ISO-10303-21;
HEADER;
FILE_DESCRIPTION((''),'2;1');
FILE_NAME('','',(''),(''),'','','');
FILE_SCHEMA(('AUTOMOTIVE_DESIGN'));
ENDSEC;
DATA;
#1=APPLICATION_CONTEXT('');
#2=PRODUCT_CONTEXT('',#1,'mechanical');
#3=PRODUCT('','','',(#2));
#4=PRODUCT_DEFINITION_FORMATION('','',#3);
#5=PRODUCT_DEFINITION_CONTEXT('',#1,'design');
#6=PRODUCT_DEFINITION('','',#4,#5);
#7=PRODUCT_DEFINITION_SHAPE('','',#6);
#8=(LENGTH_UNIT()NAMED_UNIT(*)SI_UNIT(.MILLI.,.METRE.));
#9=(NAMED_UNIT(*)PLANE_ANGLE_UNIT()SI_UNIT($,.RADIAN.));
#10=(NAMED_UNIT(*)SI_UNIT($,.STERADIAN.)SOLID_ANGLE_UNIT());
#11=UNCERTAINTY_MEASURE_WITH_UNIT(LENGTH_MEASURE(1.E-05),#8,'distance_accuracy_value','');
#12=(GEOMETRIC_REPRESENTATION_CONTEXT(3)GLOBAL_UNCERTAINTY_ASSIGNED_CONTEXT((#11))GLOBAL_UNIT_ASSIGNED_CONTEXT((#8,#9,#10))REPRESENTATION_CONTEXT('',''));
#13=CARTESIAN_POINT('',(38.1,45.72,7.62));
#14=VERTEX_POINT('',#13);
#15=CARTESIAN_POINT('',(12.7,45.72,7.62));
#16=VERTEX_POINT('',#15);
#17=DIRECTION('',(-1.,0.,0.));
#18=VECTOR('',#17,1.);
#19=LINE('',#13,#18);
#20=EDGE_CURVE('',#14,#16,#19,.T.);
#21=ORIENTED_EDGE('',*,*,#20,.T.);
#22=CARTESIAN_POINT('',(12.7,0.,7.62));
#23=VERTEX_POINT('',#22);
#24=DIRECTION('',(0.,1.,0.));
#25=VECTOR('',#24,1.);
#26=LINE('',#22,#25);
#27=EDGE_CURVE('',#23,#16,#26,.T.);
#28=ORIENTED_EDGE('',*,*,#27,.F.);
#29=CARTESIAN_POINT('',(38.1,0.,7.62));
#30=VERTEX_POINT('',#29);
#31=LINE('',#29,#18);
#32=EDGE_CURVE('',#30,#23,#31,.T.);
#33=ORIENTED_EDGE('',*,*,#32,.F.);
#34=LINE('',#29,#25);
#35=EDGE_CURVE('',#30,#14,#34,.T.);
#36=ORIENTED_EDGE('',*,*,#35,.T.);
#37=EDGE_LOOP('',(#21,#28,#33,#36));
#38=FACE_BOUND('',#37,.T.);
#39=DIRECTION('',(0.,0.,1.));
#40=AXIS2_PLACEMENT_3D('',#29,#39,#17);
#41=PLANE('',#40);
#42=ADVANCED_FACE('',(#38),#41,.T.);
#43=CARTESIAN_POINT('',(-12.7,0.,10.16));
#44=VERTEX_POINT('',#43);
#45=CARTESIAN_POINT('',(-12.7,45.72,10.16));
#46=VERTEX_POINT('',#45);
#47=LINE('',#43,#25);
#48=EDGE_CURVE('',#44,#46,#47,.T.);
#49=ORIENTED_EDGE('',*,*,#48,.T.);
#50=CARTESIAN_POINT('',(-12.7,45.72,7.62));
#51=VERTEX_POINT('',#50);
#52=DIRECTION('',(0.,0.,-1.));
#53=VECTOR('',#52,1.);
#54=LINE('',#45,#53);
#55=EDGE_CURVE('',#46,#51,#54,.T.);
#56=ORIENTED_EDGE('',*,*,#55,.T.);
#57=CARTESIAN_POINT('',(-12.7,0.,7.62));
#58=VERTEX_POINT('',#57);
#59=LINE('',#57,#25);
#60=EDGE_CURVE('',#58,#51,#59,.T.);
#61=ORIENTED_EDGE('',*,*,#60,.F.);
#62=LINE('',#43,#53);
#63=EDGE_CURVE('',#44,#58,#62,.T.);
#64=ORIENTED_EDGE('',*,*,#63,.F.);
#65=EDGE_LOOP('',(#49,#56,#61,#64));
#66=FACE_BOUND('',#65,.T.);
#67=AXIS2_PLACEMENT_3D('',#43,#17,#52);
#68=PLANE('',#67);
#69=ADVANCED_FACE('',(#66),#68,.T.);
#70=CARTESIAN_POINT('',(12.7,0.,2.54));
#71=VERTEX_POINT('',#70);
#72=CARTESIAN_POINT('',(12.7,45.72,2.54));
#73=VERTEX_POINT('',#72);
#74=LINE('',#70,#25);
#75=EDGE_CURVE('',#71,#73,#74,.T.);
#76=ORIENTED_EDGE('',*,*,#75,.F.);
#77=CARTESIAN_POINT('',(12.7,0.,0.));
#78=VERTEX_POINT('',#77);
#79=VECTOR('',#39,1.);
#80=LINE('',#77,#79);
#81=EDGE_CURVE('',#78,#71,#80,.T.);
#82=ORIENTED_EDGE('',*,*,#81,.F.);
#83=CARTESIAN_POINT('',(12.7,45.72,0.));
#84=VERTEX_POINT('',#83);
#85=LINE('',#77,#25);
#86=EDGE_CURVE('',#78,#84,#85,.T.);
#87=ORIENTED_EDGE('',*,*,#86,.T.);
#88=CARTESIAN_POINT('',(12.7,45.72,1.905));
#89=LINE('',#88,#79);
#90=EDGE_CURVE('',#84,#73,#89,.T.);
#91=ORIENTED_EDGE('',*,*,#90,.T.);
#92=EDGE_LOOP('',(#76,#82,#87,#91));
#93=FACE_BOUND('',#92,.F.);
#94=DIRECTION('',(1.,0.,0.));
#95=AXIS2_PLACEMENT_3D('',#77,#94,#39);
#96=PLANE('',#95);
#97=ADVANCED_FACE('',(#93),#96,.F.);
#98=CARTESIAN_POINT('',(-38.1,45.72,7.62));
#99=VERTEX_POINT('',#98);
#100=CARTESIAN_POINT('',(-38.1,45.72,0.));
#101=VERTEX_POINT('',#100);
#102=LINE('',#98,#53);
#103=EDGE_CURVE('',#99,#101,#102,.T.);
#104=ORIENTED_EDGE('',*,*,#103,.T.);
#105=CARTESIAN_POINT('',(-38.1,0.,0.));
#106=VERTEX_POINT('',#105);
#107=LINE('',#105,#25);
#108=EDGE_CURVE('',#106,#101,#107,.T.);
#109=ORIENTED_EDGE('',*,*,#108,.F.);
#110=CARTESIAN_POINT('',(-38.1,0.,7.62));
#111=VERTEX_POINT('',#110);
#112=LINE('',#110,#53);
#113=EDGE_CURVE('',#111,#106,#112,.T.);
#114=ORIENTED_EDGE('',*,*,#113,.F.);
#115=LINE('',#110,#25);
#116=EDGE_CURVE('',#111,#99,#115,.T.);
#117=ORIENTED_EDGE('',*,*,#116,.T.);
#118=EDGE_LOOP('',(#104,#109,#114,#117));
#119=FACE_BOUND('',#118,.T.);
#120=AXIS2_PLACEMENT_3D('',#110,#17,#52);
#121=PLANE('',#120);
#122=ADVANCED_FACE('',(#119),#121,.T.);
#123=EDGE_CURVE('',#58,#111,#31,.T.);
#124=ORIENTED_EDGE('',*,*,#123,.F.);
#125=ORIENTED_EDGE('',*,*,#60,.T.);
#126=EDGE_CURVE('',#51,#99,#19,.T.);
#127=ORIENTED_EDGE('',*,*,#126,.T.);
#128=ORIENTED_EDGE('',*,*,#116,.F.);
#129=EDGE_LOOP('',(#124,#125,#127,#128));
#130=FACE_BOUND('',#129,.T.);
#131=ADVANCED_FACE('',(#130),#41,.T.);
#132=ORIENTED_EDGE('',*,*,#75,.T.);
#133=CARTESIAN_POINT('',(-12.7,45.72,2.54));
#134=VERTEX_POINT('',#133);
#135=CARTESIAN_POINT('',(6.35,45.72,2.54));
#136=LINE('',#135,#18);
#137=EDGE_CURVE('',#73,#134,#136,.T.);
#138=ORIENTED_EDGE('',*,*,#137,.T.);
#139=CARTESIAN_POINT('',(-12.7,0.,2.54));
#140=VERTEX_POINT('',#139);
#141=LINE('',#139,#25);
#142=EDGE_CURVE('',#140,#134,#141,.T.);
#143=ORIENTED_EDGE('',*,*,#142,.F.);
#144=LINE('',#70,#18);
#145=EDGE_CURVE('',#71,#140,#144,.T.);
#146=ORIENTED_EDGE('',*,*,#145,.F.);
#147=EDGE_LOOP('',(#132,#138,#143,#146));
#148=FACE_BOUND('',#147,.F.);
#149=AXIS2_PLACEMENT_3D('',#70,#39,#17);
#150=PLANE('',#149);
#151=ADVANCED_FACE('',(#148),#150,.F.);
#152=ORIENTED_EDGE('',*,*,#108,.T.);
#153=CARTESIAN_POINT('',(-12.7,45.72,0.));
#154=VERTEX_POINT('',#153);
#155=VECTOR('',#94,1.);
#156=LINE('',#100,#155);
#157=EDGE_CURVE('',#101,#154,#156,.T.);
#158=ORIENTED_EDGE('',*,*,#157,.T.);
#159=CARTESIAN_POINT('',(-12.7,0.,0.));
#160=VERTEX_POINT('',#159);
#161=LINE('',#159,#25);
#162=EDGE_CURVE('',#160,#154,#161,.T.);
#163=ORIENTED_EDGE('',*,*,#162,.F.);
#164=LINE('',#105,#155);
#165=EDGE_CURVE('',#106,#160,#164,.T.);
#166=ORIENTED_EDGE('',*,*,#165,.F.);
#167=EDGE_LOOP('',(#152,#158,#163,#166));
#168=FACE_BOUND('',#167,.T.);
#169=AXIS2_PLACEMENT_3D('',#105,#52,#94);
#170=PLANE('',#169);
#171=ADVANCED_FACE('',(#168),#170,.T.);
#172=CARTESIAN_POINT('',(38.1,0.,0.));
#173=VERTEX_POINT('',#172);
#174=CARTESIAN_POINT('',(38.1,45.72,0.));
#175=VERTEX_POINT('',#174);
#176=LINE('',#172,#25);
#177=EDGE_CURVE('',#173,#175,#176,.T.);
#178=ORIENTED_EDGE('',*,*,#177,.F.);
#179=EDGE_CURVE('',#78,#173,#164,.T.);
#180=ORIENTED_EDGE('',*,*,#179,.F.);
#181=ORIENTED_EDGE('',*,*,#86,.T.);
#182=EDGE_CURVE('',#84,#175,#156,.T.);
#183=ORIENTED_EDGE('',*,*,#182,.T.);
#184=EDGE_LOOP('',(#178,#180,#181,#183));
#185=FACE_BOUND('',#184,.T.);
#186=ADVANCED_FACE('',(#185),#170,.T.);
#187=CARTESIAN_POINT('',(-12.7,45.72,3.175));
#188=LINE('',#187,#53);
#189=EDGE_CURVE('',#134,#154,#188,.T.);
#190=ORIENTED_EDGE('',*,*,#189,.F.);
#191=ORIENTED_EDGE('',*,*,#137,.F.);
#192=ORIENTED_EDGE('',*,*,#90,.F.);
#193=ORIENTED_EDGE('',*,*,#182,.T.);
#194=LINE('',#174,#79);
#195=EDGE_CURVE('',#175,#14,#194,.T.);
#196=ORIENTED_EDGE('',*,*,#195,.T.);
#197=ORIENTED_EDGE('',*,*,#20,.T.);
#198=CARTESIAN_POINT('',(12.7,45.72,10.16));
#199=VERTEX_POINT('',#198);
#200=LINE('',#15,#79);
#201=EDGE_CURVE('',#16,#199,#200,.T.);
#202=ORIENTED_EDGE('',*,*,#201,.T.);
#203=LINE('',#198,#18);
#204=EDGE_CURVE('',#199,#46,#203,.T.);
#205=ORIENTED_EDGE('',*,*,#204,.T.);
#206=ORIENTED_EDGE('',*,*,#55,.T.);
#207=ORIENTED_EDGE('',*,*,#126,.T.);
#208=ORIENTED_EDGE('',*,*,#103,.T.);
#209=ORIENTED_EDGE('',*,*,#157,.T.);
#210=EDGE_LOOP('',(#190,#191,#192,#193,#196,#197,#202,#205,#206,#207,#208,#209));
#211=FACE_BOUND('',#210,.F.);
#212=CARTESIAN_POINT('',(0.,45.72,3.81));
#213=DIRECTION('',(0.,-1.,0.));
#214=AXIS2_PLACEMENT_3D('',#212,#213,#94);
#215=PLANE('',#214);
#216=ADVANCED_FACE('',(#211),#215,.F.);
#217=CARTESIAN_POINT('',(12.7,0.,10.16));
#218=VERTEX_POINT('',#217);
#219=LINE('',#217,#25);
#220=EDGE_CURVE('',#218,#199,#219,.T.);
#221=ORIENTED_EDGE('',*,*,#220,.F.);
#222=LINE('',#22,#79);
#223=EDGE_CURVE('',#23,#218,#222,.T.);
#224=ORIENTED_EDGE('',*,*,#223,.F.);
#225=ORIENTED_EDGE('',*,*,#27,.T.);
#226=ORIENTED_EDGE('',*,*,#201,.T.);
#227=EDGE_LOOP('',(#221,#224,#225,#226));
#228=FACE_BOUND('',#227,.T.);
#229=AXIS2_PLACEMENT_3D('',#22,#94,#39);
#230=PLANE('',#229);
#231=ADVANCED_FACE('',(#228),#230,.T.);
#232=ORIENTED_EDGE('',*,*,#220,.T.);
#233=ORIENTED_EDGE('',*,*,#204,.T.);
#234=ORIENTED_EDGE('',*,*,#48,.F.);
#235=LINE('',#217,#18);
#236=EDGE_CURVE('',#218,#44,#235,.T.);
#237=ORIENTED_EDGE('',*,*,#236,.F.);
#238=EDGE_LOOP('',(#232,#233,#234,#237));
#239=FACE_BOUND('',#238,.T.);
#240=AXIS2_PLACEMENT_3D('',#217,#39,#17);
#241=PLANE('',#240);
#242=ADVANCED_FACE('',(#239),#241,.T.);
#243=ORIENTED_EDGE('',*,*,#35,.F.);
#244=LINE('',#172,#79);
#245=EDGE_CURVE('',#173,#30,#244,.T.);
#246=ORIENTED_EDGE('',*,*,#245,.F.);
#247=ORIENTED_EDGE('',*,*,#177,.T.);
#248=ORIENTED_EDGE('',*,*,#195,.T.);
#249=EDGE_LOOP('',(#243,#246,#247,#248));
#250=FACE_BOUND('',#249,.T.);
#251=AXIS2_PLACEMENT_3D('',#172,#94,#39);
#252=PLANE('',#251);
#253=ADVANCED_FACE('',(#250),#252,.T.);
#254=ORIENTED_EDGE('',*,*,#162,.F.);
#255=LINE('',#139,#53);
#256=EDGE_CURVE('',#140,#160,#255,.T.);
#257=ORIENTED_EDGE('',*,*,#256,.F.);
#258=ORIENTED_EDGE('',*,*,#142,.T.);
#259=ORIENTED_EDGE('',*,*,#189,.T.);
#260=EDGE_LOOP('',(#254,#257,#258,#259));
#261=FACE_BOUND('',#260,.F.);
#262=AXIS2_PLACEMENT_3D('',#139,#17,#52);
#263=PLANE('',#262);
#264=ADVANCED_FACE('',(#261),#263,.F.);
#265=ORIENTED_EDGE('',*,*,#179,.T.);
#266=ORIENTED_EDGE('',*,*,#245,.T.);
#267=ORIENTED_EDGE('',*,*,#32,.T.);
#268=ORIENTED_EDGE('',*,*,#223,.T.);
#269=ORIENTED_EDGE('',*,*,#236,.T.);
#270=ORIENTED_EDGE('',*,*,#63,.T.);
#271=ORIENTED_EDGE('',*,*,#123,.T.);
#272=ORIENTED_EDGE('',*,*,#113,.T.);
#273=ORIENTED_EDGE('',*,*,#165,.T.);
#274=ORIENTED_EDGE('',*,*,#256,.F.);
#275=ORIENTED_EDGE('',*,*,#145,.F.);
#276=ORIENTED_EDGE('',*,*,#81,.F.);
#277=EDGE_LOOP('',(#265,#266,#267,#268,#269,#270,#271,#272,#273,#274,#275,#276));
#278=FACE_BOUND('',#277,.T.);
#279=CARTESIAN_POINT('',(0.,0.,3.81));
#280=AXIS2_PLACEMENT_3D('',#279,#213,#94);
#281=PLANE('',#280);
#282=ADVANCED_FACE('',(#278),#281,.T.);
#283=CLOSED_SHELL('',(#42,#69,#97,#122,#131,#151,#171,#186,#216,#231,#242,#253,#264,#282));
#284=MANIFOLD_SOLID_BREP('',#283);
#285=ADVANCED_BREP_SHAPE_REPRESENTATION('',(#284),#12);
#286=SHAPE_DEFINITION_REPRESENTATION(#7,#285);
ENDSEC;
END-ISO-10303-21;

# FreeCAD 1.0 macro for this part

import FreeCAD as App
import Part
import Sketcher

V = App.Vector
Q = App.Units.Quantity

doc = App.newDocument("Part")
params = doc.addObject("Spreadsheet::Sheet", "Params")
for row, (alias, value) in enumerate([
    ("sketch1_width", "3 in"),
    ("sketch1_height", "0.3 in"),
    ("pad1_length", "1.8 in"),
    ("sketch2_width", "1 in"),
    ("sketch2_height", "0.1 in"),
    ("sketch3_width", "1 in"),
    ("sketch3_height", "0.1 in"),
    ("pad2_length", "1.8 in"),
], start=1):
    params.set(f"A{row}", alias)
    params.set(f"B{row}", "=" + value)
    params.setAlias(f"B{row}", alias)

body = doc.addObject("PartDesign::Body", "Body")

# Sketch on XZ plane
sketch1 = doc.addObject("Sketcher::SketchObject", "Sketch")
body.addObject(sketch1)
sketch1.AttachmentSupport = (doc.XZ_Plane, [""])
sketch1.MapMode = "FlatFace"
sketch1.addGeometry([
    Part.LineSegment(V(-38, 0, 0), V(38, 0, 0)),
    Part.LineSegment(V(38, 0, 0), V(38, 8, 0)),
    Part.LineSegment(V(38, 8, 0), V(-38, 8, 0)),
    Part.LineSegment(V(-38, 8, 0), V(-38, 0, 0)),
], False)
sketch1.addConstraint([
    Sketcher.Constraint("Coincident", 0, 2, 1, 1),
    Sketcher.Constraint("Coincident", 1, 2, 2, 1),
    Sketcher.Constraint("Coincident", 2, 2, 3, 1),
    Sketcher.Constraint("Coincident", 3, 2, 0, 1),
    Sketcher.Constraint("Horizontal", 0),
    Sketcher.Constraint("Vertical", 1),
    Sketcher.Constraint("Horizontal", 2),
    Sketcher.Constraint("Vertical", 3),
    Sketcher.Constraint("Symmetric", 0, 2, 3, 2, -1, 1),
    Sketcher.Constraint("DistanceX", 0, 1, 0, 2, Q("3 in")),
    Sketcher.Constraint("DistanceY", 1, 1, 1, 2, Q("0.3 in")),
])
sketch1.setExpression("Constraints[9]", "Params.sketch1_width")
sketch1.setExpression("Constraints[10]", "Params.sketch1_height")
pad1 = doc.addObject("PartDesign::Pad", "Pad")
body.addObject(pad1)
pad1.Profile = sketch1
pad1.setExpression("Length", "Params.pad1_length")
pad1.Reversed = True

# Sketch on XZ plane
sketch2 = doc.addObject("Sketcher::SketchObject", "Sketch001")
body.addObject(sketch2)
sketch2.AttachmentSupport = (doc.XZ_Plane, [""])
sketch2.MapMode = "FlatFace"
sketch2.addGeometry([
    Part.LineSegment(V(-12.7, 0, 0), V(12.7, 0, 0)),
    Part.LineSegment(V(12.7, 0, 0), V(12.7, 2.5, 0)),
    Part.LineSegment(V(12.7, 2.5, 0), V(-12.7, 2.5, 0)),
    Part.LineSegment(V(-12.7, 2.5, 0), V(-12.7, 0, 0)),
], False)
sketch2.addConstraint([
    Sketcher.Constraint("Coincident", 0, 2, 1, 1),
    Sketcher.Constraint("Coincident", 1, 2, 2, 1),
    Sketcher.Constraint("Coincident", 2, 2, 3, 1),
    Sketcher.Constraint("Coincident", 3, 2, 0, 1),
    Sketcher.Constraint("Horizontal", 0),
    Sketcher.Constraint("Vertical", 1),
    Sketcher.Constraint("Horizontal", 2),
    Sketcher.Constraint("Vertical", 3),
    Sketcher.Constraint("Symmetric", 0, 2, 3, 2, -1, 1),
    Sketcher.Constraint("DistanceX", 0, 1, 0, 2, Q("1 in")),
    Sketcher.Constraint("DistanceY", 1, 1, 1, 2, Q("0.1 in")),
])
sketch2.setExpression("Constraints[9]", "Params.sketch2_width")
sketch2.setExpression("Constraints[10]", "Params.sketch2_height")
pocket1 = doc.addObject("PartDesign::Pocket", "Pocket")
body.addObject(pocket1)
pocket1.Profile = sketch2
pocket1.Type = "ThroughAll"

# Sketch on XZ plane
sketch3 = doc.addObject("Sketcher::SketchObject", "Sketch002")
body.addObject(sketch3)
sketch3.AttachmentSupport = (doc.XZ_Plane, [""])
sketch3.MapMode = "FlatFace"
sketch3.addGeometry([
    Part.LineSegment(V(-12.7, 7.6, 0), V(12.7, 7.6, 0)),
    Part.LineSegment(V(12.7, 7.6, 0), V(12.7, 10.2, 0)),
    Part.LineSegment(V(12.7, 10.2, 0), V(-12.7, 10.2, 0)),
    Part.LineSegment(V(-12.7, 10.2, 0), V(-12.7, 7.6, 0)),
], False)
sketch3.addConstraint([
    Sketcher.Constraint("Coincident", 0, 2, 1, 1),
    Sketcher.Constraint("Coincident", 1, 2, 2, 1),
    Sketcher.Constraint("Coincident", 2, 2, 3, 1),
    Sketcher.Constraint("Coincident", 3, 2, 0, 1),
    Sketcher.Constraint("Horizontal", 0),
    Sketcher.Constraint("Vertical", 1),
    Sketcher.Constraint("Horizontal", 2),
    Sketcher.Constraint("Vertical", 3),
    Sketcher.Constraint("DistanceX", 0, 1, 0, 2, Q("1 in")),
    Sketcher.Constraint("DistanceY", 1, 1, 1, 2, Q("0.1 in")),
    Sketcher.Constraint("DistanceX", -1, 1, 0, 2, Q("0.5 in")),
    Sketcher.Constraint("DistanceY", -1, 1, 0, 2, Q("0.3 in")),
])
sketch3.setExpression("Constraints[8]", "Params.sketch3_width")
sketch3.setExpression("Constraints[9]", "Params.sketch3_height")
pad2 = doc.addObject("PartDesign::Pad", "Pad001")
body.addObject(pad2)
pad2.Profile = sketch3
pad2.setExpression("Length", "Params.pad2_length")
pad2.Reversed = True

doc.recompute()
